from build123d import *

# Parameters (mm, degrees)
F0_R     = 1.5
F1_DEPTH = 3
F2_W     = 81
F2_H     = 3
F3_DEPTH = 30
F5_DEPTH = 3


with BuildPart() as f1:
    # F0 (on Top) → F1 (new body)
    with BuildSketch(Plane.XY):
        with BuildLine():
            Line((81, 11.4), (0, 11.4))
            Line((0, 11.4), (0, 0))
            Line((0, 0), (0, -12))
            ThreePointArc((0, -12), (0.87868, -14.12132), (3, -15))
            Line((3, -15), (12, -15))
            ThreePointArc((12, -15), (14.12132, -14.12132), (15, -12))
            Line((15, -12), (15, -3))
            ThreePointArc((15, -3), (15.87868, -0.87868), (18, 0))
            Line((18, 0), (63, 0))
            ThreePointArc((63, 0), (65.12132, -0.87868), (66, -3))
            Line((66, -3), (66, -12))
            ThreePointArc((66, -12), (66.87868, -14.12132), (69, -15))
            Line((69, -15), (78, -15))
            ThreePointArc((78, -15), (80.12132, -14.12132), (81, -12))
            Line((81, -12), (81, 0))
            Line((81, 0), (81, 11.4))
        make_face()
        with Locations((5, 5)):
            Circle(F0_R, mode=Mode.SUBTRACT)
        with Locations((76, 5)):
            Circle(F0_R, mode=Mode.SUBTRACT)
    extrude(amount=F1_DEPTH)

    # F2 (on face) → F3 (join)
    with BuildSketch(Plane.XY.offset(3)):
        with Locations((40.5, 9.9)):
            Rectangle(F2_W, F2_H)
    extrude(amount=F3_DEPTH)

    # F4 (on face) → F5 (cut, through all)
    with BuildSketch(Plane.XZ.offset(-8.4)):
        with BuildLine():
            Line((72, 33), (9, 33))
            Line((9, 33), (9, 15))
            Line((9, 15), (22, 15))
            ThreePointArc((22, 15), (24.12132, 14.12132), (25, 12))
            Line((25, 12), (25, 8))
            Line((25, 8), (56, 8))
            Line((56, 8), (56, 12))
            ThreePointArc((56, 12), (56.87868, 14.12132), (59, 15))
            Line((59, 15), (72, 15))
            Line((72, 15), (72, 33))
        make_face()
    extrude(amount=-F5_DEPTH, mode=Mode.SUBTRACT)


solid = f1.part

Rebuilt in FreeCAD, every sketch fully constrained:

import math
import FreeCAD as App
import Part
import Sketcher


def add_polygon(sketch, points):
    """Adds a closed chain of lines whose ends are joined by coincident constraints."""
    first, n = sketch.GeometryCount, len(points)
    for a, b in zip(points, points[1:] + points[:1]):
        sketch.addGeometry(Part.LineSegment(App.Vector(*a, 0), App.Vector(*b, 0)), False)
    for i in range(n):
        sketch.addConstraint(Sketcher.Constraint("Coincident", first + i, 2, first + (i + 1) % n, 1))

doc = App.newDocument("Part")
body = doc.addObject("PartDesign::Body", "Body")

# Sketch on XY plane
sketch1 = body.newObject("Sketcher::SketchObject", "Sketch")
sketch1.AttachmentSupport = (doc.getObject("XY_Plane"), [""])
sketch1.MapMode = "FlatFace"
sketch1.addGeometry(Part.LineSegment(App.Vector(81, 11.4, 0), App.Vector(0, 11.4, 0)), False)
sketch1.addGeometry(Part.LineSegment(App.Vector(0, 11.4, 0), App.Vector(0, -12, 0)), False)
sketch1.addGeometry(Part.ArcOfCircle(Part.Circle(App.Vector(3, -12, 0), App.Vector(0, 0, 1), 3), math.radians(-180), math.radians(-90)), False)
sketch1.addGeometry(Part.LineSegment(App.Vector(3, -15, 0), App.Vector(12, -15, 0)), False)
sketch1.addGeometry(Part.ArcOfCircle(Part.Circle(App.Vector(12, -12, 0), App.Vector(0, 0, 1), 3), math.radians(-90), math.radians(0)), False)
sketch1.addGeometry(Part.LineSegment(App.Vector(15, -12, 0), App.Vector(15, -3, 0)), False)
sketch1.addGeometry(Part.ArcOfCircle(Part.Circle(App.Vector(18, -3, 0), App.Vector(0, 0, 1), 3), math.radians(90), math.radians(180)), False)
sketch1.addGeometry(Part.LineSegment(App.Vector(18, 0, 0), App.Vector(63, 0, 0)), False)
sketch1.addGeometry(Part.ArcOfCircle(Part.Circle(App.Vector(63, -3, 0), App.Vector(0, 0, 1), 3), math.radians(0), math.radians(90)), False)
sketch1.addGeometry(Part.LineSegment(App.Vector(66, -3, 0), App.Vector(66, -12, 0)), False)
sketch1.addGeometry(Part.ArcOfCircle(Part.Circle(App.Vector(69, -12, 0), App.Vector(0, 0, 1), 3), math.radians(-180), math.radians(-90)), False)
sketch1.addGeometry(Part.LineSegment(App.Vector(69, -15, 0), App.Vector(78, -15, 0)), False)
sketch1.addGeometry(Part.ArcOfCircle(Part.Circle(App.Vector(78, -12, 0), App.Vector(0, 0, 1), 3), math.radians(-90), math.radians(0)), False)
sketch1.addGeometry(Part.LineSegment(App.Vector(81, -12, 0), App.Vector(81, 11.4, 0)), False)
sketch1.addGeometry(Part.Circle(App.Vector(5, 5, 0), App.Vector(0, 0, 1), 1.5), False)
sketch1.addGeometry(Part.Circle(App.Vector(76, 5, 0), App.Vector(0, 0, 1), 1.5), False)
sketch1.addConstraint(Sketcher.Constraint("Coincident", 0, 2, 1, 1))
sketch1.addConstraint(Sketcher.Constraint("Tangent", 1, 2, 2, 1))
sketch1.addConstraint(Sketcher.Constraint("Tangent", 2, 2, 3, 1))
sketch1.addConstraint(Sketcher.Constraint("Tangent", 3, 2, 4, 1))
sketch1.addConstraint(Sketcher.Constraint("Tangent", 4, 2, 5, 1))
sketch1.addConstraint(Sketcher.Constraint("Tangent", 5, 2, 6, 2))
sketch1.addConstraint(Sketcher.Constraint("Tangent", 6, 1, 7, 1))
sketch1.addConstraint(Sketcher.Constraint("Tangent", 7, 2, 8, 2))
sketch1.addConstraint(Sketcher.Constraint("Tangent", 8, 1, 9, 1))
sketch1.addConstraint(Sketcher.Constraint("Tangent", 9, 2, 10, 1))
sketch1.addConstraint(Sketcher.Constraint("Tangent", 10, 2, 11, 1))
sketch1.addConstraint(Sketcher.Constraint("Tangent", 11, 2, 12, 1))
sketch1.addConstraint(Sketcher.Constraint("Tangent", 12, 2, 13, 1))
sketch1.addConstraint(Sketcher.Constraint("Coincident", 13, 2, 0, 1))
sketch1.addConstraint(Sketcher.Constraint("Horizontal", 0))
sketch1.addConstraint(Sketcher.Constraint("Vertical", 1))
sketch1.addConstraint(Sketcher.Constraint("Horizontal", 3))
sketch1.addConstraint(Sketcher.Constraint("Vertical", 5))
sketch1.addConstraint(Sketcher.Constraint("Horizontal", 7))
sketch1.addConstraint(Sketcher.Constraint("Vertical", 9))
sketch1.addConstraint(Sketcher.Constraint("Horizontal", 11))
sketch1.addConstraint(Sketcher.Constraint("Vertical", 13))
sketch1.addConstraint(Sketcher.Constraint("Equal", 2, 4))
sketch1.addConstraint(Sketcher.Constraint("Equal", 4, 6))
sketch1.addConstraint(Sketcher.Constraint("Equal", 6, 8))
sketch1.addConstraint(Sketcher.Constraint("Equal", 8, 10))
sketch1.addConstraint(Sketcher.Constraint("Equal", 10, 12))
sketch1.addConstraint(Sketcher.Constraint("Equal", 14, 15))
sketch1.addConstraint(Sketcher.Constraint("PointOnObject", 0, 2, -2))
sketch1.addConstraint(Sketcher.Constraint("PointOnObject", 6, 1, -1))
sketch1.addConstraint(Sketcher.Constraint("Horizontal", 4, 3, 10, 3))
sketch1.addConstraint(Sketcher.Constraint("Horizontal", 14, 3, 15, 3))
sketch1.addConstraint(Sketcher.Constraint("Equal", 3, 11))
sketch1.addConstraint(Sketcher.Constraint("Equal", 11, 5))
sketch1.addConstraint(Sketcher.Constraint("Diameter", 14, 3.0))
sketch1.addConstraint(Sketcher.Constraint("Radius", 2, 3.000001))
sketch1.addConstraint(Sketcher.Constraint("DistanceX", 0, 2, 0, 1, 81.0))
sketch1.addConstraint(Sketcher.Constraint("DistanceX", 3, 1, 3, 2, 9.0))
sketch1.addConstraint(Sketcher.Constraint("DistanceY", 1, 2, 1, 1, 23.4))
sketch1.addConstraint(Sketcher.Constraint("DistanceX", -1, 1, 14, 3, 5.0))
sketch1.addConstraint(Sketcher.Constraint("DistanceY", -1, 1, 14, 3, 5.0))
sketch1.addConstraint(Sketcher.Constraint("DistanceX", -1, 1, 15, 3, 76.0))
pad1 = body.newObject("PartDesign::Pad", "Pad")
pad1.Profile = sketch1
pad1.Length = 3

# Sketch on XY plane
sketch2 = body.newObject("Sketcher::SketchObject", "Sketch001")
sketch2.AttachmentSupport = (doc.getObject("XY_Plane"), [""])
sketch2.MapMode = "FlatFace"
sketch2.AttachmentOffset = App.Placement(App.Vector(0, 0, 3), App.Rotation())
add_polygon(sketch2, [(0, 11.4), (0, 8.4), (81, 8.4), (81, 11.4)])  # lines 0-3
sketch2.addConstraint(Sketcher.Constraint("Vertical", 0))
sketch2.addConstraint(Sketcher.Constraint("Horizontal", 1))
sketch2.addConstraint(Sketcher.Constraint("Vertical", 2))
sketch2.addConstraint(Sketcher.Constraint("Horizontal", 3))
sketch2.addConstraint(Sketcher.Constraint("PointOnObject", 0, 2, -2))
sketch2.addConstraint(Sketcher.Constraint("DistanceX", 1, 1, 1, 2, 81.0))
sketch2.addConstraint(Sketcher.Constraint("DistanceY", 0, 2, 0, 1, 3.0))
sketch2.addConstraint(Sketcher.Constraint("DistanceY", -1, 1, 0, 2, 8.4))
pad2 = body.newObject("PartDesign::Pad", "Pad001")
pad2.Profile = sketch2
pad2.Length = 30

# Sketch on XZ plane
sketch3 = body.newObject("Sketcher::SketchObject", "Sketch002")
sketch3.AttachmentSupport = (doc.getObject("XZ_Plane"), [""])
sketch3.MapMode = "FlatFace"
sketch3.AttachmentOffset = App.Placement(App.Vector(0, 0, -8.4), App.Rotation())
sketch3.addGeometry(Part.LineSegment(App.Vector(72, 33, 0), App.Vector(9, 33, 0)), False)
sketch3.addGeometry(Part.LineSegment(App.Vector(9, 33, 0), App.Vector(9, 15, 0)), False)
sketch3.addGeometry(Part.LineSegment(App.Vector(9, 15, 0), App.Vector(22, 15, 0)), False)
sketch3.addGeometry(Part.ArcOfCircle(Part.Circle(App.Vector(22, 12, 0), App.Vector(0, 0, 1), 3), math.radians(0), math.radians(90)), False)
sketch3.addGeometry(Part.LineSegment(App.Vector(25, 12, 0), App.Vector(25, 8, 0)), False)
sketch3.addGeometry(Part.LineSegment(App.Vector(25, 8, 0), App.Vector(56, 8, 0)), False)
sketch3.addGeometry(Part.LineSegment(App.Vector(56, 8, 0), App.Vector(56, 12, 0)), False)
sketch3.addGeometry(Part.ArcOfCircle(Part.Circle(App.Vector(59, 12, 0), App.Vector(0, 0, 1), 3), math.radians(90), math.radians(180)), False)
sketch3.addGeometry(Part.LineSegment(App.Vector(59, 15, 0), App.Vector(72, 15, 0)), False)
sketch3.addGeometry(Part.LineSegment(App.Vector(72, 15, 0), App.Vector(72, 33, 0)), False)
sketch3.addConstraint(Sketcher.Constraint("Coincident", 0, 2, 1, 1))
sketch3.addConstraint(Sketcher.Constraint("Coincident", 1, 2, 2, 1))
sketch3.addConstraint(Sketcher.Constraint("Tangent", 2, 2, 3, 2))
sketch3.addConstraint(Sketcher.Constraint("Tangent", 3, 1, 4, 1))
sketch3.addConstraint(Sketcher.Constraint("Coincident", 4, 2, 5, 1))
sketch3.addConstraint(Sketcher.Constraint("Coincident", 5, 2, 6, 1))
sketch3.addConstraint(Sketcher.Constraint("Tangent", 6, 2, 7, 2))
sketch3.addConstraint(Sketcher.Constraint("Tangent", 7, 1, 8, 1))
sketch3.addConstraint(Sketcher.Constraint("Coincident", 8, 2, 9, 1))
sketch3.addConstraint(Sketcher.Constraint("Coincident", 9, 2, 0, 1))
sketch3.addConstraint(Sketcher.Constraint("Horizontal", 0))
sketch3.addConstraint(Sketcher.Constraint("Vertical", 1))
sketch3.addConstraint(Sketcher.Constraint("Horizontal", 2))
sketch3.addConstraint(Sketcher.Constraint("Vertical", 4))
sketch3.addConstraint(Sketcher.Constraint("Horizontal", 5))
sketch3.addConstraint(Sketcher.Constraint("Vertical", 6))
sketch3.addConstraint(Sketcher.Constraint("Horizontal", 8))
sketch3.addConstraint(Sketcher.Constraint("Vertical", 9))
sketch3.addConstraint(Sketcher.Constraint("Equal", 3, 7))
sketch3.addConstraint(Sketcher.Constraint("Horizontal", 3, 3, 7, 3))
sketch3.addConstraint(Sketcher.Constraint("Equal", 2, 8))
sketch3.addConstraint(Sketcher.Constraint("Radius", 3, 3.000001))
sketch3.addConstraint(Sketcher.Constraint("DistanceX", 0, 2, 0, 1, 63.0))
sketch3.addConstraint(Sketcher.Constraint("DistanceX", 2, 1, 2, 2, 13.0))
sketch3.addConstraint(Sketcher.Constraint("DistanceY", 1, 2, 1, 1, 18.0))
sketch3.addConstraint(Sketcher.Constraint("DistanceY", 4, 2, 4, 1, 4.0))
sketch3.addConstraint(Sketcher.Constraint("DistanceX", -1, 1, 3, 3, 21.999999))
sketch3.addConstraint(Sketcher.Constraint("DistanceY", -1, 1, 3, 3, 11.999999))
pocket1 = body.newObject("PartDesign::Pocket", "Pocket")
pocket1.Profile = sketch3
pocket1.Type = "ThroughAll"

doc.recompute()
